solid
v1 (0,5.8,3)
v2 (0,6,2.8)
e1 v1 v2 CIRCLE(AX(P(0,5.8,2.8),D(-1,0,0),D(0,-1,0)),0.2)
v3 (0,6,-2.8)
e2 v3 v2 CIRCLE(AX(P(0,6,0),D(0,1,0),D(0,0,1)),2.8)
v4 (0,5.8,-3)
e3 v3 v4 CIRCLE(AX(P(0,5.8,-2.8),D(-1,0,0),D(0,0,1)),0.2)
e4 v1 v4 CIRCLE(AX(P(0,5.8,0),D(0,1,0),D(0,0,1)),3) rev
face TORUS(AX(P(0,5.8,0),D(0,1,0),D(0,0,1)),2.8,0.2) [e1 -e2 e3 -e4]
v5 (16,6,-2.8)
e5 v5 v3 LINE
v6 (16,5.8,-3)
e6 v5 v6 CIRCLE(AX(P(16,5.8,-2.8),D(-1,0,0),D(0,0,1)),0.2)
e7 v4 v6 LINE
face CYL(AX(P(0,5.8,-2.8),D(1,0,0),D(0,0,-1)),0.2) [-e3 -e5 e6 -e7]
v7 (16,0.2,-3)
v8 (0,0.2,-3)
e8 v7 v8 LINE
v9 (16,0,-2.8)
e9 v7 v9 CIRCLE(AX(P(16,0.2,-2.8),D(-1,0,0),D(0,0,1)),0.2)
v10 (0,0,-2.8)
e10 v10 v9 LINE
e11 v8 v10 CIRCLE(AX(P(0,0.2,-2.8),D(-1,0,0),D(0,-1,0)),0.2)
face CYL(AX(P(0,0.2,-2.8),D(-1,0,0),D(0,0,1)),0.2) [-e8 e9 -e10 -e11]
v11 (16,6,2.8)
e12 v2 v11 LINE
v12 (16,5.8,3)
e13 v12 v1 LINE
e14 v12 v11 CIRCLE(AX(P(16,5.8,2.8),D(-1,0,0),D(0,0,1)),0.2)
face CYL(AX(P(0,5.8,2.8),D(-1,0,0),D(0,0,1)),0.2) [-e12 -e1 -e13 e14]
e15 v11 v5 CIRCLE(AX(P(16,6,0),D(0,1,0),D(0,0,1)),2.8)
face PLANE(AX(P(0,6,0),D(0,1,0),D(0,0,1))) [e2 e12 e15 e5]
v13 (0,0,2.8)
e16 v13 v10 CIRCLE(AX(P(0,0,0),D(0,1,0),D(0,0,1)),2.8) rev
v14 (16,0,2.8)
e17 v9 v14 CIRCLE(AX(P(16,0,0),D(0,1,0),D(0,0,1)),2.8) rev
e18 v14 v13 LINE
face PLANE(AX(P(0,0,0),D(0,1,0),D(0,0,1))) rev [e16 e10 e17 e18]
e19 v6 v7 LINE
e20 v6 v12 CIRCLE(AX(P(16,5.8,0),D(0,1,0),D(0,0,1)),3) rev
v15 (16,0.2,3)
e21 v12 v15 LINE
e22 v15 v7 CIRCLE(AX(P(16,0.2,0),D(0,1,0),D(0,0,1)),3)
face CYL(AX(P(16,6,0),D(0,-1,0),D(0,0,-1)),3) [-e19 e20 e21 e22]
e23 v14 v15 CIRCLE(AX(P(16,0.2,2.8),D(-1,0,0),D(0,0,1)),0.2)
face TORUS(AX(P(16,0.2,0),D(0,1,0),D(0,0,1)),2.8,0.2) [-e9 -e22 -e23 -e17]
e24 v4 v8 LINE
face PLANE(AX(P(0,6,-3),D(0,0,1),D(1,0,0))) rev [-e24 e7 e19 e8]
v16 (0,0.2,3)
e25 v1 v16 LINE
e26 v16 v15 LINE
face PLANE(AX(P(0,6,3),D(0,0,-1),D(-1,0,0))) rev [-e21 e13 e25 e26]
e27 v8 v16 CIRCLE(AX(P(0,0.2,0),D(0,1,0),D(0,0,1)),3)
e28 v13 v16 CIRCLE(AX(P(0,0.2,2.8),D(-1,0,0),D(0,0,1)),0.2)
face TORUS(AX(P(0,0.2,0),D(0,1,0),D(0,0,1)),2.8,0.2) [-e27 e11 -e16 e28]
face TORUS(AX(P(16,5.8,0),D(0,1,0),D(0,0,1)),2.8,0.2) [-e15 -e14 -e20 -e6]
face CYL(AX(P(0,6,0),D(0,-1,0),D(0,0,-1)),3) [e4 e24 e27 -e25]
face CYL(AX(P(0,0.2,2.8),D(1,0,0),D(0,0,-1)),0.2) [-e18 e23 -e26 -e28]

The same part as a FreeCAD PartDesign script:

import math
import FreeCAD as App
import Part
import Sketcher

V = App.Vector
Q = App.Units.Quantity


def edges_at(feature, points):
    """Names of the edges that pass closest to the given points."""
    edges = feature.Shape.Edges
    near = lambda p: min(range(len(edges)), key=lambda i: edges[i].distToShape(Part.Vertex(*p))[0])
    return sorted({f"Edge{near(p) + 1}" for p in points})

doc = App.newDocument("Part")
body = doc.addObject("PartDesign::Body", "Body")

sketch1 = body.newObject("Sketcher::SketchObject", "Sketch")
sketch1.AttachmentSupport = (doc.getObject("XZ_Plane"), [""])
sketch1.MapMode = "FlatFace"
sketch1.addGeometry([
    Part.LineSegment(V(16, -3, 0), V(0, -3, 0)),
    Part.ArcOfCircle(Part.Circle(V(0, 0, 0), V(0, 0, 1), 3), math.radians(90), math.radians(270)),
    Part.LineSegment(V(0, 3, 0), V(16, 3, 0)),
    Part.ArcOfCircle(Part.Circle(V(16, 0, 0), V(0, 0, 1), 3), math.radians(-90), math.radians(90)),
], False)
sketch1.addConstraint([
    Sketcher.Constraint("Tangent", 0, 2, 1, 2),
    Sketcher.Constraint("Tangent", 1, 1, 2, 1),
    Sketcher.Constraint("Tangent", 2, 2, 3, 2),
    Sketcher.Constraint("Tangent", 3, 1, 0, 1),
    Sketcher.Constraint("Horizontal", 0),
    Sketcher.Constraint("Horizontal", 2),
    Sketcher.Constraint("Coincident", 1, 3, -1, 1),
    Sketcher.Constraint("Radius", 1, Q("3 mm")),
    Sketcher.Constraint("DistanceX", 0, 2, 0, 1, Q("16 mm")),
])
pad1 = body.newObject("PartDesign::Pad", "Pad")
pad1.Profile = sketch1
pad1.Length = 6
pad1.Reversed = True
doc.recompute()

fillet = body.newObject("PartDesign::Fillet", "Fillet")
fillet.Base = (pad1, edges_at(pad1, [
    (19, 6, 0),
    (8, 6, -3),
    (-3, 6, 0),
    (8, 0, -3),
    (19, 0, 0),
    (8, 0, 3),
    (-3, 0, 0),
    (8, 6, 3),
]))
fillet.Radius = 0.2

doc.recompute()
